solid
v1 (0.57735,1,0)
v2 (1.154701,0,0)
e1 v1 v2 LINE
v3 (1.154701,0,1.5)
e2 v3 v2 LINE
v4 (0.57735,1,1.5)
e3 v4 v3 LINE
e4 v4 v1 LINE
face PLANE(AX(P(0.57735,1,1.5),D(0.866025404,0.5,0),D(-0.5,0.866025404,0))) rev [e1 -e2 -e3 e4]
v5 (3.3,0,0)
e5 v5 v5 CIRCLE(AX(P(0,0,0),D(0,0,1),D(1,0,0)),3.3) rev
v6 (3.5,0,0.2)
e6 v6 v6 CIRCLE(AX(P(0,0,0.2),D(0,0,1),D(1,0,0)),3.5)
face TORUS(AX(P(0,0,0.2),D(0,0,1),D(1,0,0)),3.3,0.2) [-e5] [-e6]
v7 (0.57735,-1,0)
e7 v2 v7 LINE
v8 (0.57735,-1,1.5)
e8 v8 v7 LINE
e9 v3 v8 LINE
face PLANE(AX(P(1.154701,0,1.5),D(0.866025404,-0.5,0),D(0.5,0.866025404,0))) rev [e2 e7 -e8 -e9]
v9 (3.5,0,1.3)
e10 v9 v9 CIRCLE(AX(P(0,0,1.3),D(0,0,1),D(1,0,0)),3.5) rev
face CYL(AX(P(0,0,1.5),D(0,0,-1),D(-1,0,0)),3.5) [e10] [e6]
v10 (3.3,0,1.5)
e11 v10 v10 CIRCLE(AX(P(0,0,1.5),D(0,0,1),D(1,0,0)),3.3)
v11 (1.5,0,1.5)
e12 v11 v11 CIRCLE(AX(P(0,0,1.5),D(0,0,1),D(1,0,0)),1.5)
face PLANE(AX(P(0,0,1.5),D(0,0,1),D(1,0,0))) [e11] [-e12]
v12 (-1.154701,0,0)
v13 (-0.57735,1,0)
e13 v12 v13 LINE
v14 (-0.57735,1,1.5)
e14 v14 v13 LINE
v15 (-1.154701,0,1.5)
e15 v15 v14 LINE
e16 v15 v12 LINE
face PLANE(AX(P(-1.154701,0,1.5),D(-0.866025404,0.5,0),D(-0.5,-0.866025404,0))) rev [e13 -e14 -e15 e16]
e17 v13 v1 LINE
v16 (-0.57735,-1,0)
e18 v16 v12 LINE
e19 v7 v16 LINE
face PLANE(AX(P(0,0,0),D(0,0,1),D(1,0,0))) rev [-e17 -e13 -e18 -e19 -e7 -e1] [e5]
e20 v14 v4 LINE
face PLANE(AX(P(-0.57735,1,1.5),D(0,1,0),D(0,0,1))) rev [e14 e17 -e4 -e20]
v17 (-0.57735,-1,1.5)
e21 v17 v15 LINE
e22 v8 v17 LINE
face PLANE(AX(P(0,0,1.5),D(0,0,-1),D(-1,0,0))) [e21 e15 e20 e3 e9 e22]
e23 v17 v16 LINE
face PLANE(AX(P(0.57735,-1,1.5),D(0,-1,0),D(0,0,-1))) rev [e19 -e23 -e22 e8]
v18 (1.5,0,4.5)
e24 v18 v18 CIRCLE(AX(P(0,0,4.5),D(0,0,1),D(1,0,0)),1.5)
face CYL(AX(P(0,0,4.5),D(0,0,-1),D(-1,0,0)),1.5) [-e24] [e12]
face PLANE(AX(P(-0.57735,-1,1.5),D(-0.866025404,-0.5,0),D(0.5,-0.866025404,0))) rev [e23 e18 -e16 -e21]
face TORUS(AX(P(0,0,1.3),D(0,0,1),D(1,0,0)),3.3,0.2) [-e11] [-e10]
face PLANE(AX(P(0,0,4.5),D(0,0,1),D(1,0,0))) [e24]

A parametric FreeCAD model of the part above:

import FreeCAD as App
import Part
import Sketcher
from FreeCAD import Vector
Q = App.Units.Quantity


def edges_at(feature, points):
    """Names of the edges that pass closest to the given points."""
    edges = feature.Shape.Edges
    near = lambda p: min(range(len(edges)), key=lambda i: edges[i].distToShape(Part.Vertex(*p))[0])
    return sorted({f"Edge{near(p) + 1}" for p in points})

doc = App.newDocument("Part")
body = doc.addObject("PartDesign::Body", "Body")

# Sketch on XY plane
sketch1 = body.newObject("Sketcher::SketchObject", "Sketch")
sketch1.AttachmentSupport = (doc.getObject("XY_Plane"), [""])
sketch1.MapMode = "FlatFace"
sketch1.addGeometry(Part.Circle(Vector(0, 0, 0), Vector(0, 0, 1), 3.5), False)
sketch1.addConstraint([
    Sketcher.Constraint("Coincident", 0, 3, -1, 1),
    Sketcher.Constraint("Diameter", 0, 7.0),
])
pad1 = body.newObject("PartDesign::Pad", "Pad")
pad1.Profile = sketch1
pad1.Length = 1.5

# Sketch on XY plane
sketch2 = body.newObject("Sketcher::SketchObject", "Sketch001")
sketch2.AttachmentSupport = (doc.getObject("XY_Plane"), [""])
sketch2.MapMode = "FlatFace"
sketch2.AttachmentOffset = App.Placement(Vector(0, 0, 1.5), App.Rotation())
sketch2.addGeometry(Part.Circle(Vector(0, 0, 0), Vector(0, 0, 1), 1.5), False)
sketch2.addConstraint([
    Sketcher.Constraint("Coincident", 0, 3, -1, 1),
    Sketcher.Constraint("Diameter", 0, 3.0),
])
pad2 = body.newObject("PartDesign::Pad", "Pad001")
pad2.Profile = sketch2
pad2.Length = 3
doc.recompute()

fillet = body.newObject("PartDesign::Fillet", "Fillet")
fillet.Base = (pad2, edges_at(pad2, [(-3.5, 0, 0), (-3.5, 0, 1.5)]))
fillet.Radius = 0.2

# Sketch on XY plane
sketch3 = body.newObject("Sketcher::SketchObject", "Sketch002")
sketch3.AttachmentSupport = (doc.getObject("XY_Plane"), [""])
sketch3.MapMode = "FlatFace"
sketch3.addGeometry([
    Part.LineSegment(Vector(-1.154701, 0, 0), Vector(-0.57735, 1, 0)),  # 0
    Part.LineSegment(Vector(-0.57735, 1, 0), Vector(0.57735, 1, 0)),  # 1
    Part.LineSegment(Vector(0.57735, 1, 0), Vector(1.154701, 0, 0)),  # 2
    Part.LineSegment(Vector(1.154701, 0, 0), Vector(0.57735, -1, 0)),  # 3
    Part.LineSegment(Vector(0.57735, -1, 0), Vector(-0.57735, -1, 0)),  # 4
    Part.LineSegment(Vector(-0.57735, -1, 0), Vector(-1.154701, 0, 0)),  # 5
], False)
sketch3.addConstraint([
    Sketcher.Constraint("Coincident", 0, 2, 1, 1),
    Sketcher.Constraint("Coincident", 1, 2, 2, 1),
    Sketcher.Constraint("Coincident", 2, 2, 3, 1),
    Sketcher.Constraint("Coincident", 3, 2, 4, 1),
    Sketcher.Constraint("Coincident", 4, 2, 5, 1),
    Sketcher.Constraint("Coincident", 5, 2, 0, 1),
    Sketcher.Constraint("Horizontal", 1),
    Sketcher.Constraint("Horizontal", 4),
    Sketcher.Constraint("Symmetric", 0, 2, 3, 2, -1, 1),
    Sketcher.Constraint("Symmetric", 2, 2, 5, 2, -1, 1),
    Sketcher.Constraint("PointOnObject", 2, 2, -1),
    Sketcher.Constraint("Parallel", 2, 5),
    Sketcher.Constraint("Vertical", 1, 2, 3, 2),
    Sketcher.Constraint("Angle", 0, Q("60 deg")),
    Sketcher.Constraint("DistanceY", -1, 1, 0, 2, 1.0),
    Sketcher.Constraint("DistanceX", 1, 1, 1, 2, 1.154701),
])
pocket1 = body.newObject("PartDesign::Pocket", "Pocket")
pocket1.Profile = sketch3
pocket1.Length = 1.5
pocket1.Reversed = True

doc.recompute()
